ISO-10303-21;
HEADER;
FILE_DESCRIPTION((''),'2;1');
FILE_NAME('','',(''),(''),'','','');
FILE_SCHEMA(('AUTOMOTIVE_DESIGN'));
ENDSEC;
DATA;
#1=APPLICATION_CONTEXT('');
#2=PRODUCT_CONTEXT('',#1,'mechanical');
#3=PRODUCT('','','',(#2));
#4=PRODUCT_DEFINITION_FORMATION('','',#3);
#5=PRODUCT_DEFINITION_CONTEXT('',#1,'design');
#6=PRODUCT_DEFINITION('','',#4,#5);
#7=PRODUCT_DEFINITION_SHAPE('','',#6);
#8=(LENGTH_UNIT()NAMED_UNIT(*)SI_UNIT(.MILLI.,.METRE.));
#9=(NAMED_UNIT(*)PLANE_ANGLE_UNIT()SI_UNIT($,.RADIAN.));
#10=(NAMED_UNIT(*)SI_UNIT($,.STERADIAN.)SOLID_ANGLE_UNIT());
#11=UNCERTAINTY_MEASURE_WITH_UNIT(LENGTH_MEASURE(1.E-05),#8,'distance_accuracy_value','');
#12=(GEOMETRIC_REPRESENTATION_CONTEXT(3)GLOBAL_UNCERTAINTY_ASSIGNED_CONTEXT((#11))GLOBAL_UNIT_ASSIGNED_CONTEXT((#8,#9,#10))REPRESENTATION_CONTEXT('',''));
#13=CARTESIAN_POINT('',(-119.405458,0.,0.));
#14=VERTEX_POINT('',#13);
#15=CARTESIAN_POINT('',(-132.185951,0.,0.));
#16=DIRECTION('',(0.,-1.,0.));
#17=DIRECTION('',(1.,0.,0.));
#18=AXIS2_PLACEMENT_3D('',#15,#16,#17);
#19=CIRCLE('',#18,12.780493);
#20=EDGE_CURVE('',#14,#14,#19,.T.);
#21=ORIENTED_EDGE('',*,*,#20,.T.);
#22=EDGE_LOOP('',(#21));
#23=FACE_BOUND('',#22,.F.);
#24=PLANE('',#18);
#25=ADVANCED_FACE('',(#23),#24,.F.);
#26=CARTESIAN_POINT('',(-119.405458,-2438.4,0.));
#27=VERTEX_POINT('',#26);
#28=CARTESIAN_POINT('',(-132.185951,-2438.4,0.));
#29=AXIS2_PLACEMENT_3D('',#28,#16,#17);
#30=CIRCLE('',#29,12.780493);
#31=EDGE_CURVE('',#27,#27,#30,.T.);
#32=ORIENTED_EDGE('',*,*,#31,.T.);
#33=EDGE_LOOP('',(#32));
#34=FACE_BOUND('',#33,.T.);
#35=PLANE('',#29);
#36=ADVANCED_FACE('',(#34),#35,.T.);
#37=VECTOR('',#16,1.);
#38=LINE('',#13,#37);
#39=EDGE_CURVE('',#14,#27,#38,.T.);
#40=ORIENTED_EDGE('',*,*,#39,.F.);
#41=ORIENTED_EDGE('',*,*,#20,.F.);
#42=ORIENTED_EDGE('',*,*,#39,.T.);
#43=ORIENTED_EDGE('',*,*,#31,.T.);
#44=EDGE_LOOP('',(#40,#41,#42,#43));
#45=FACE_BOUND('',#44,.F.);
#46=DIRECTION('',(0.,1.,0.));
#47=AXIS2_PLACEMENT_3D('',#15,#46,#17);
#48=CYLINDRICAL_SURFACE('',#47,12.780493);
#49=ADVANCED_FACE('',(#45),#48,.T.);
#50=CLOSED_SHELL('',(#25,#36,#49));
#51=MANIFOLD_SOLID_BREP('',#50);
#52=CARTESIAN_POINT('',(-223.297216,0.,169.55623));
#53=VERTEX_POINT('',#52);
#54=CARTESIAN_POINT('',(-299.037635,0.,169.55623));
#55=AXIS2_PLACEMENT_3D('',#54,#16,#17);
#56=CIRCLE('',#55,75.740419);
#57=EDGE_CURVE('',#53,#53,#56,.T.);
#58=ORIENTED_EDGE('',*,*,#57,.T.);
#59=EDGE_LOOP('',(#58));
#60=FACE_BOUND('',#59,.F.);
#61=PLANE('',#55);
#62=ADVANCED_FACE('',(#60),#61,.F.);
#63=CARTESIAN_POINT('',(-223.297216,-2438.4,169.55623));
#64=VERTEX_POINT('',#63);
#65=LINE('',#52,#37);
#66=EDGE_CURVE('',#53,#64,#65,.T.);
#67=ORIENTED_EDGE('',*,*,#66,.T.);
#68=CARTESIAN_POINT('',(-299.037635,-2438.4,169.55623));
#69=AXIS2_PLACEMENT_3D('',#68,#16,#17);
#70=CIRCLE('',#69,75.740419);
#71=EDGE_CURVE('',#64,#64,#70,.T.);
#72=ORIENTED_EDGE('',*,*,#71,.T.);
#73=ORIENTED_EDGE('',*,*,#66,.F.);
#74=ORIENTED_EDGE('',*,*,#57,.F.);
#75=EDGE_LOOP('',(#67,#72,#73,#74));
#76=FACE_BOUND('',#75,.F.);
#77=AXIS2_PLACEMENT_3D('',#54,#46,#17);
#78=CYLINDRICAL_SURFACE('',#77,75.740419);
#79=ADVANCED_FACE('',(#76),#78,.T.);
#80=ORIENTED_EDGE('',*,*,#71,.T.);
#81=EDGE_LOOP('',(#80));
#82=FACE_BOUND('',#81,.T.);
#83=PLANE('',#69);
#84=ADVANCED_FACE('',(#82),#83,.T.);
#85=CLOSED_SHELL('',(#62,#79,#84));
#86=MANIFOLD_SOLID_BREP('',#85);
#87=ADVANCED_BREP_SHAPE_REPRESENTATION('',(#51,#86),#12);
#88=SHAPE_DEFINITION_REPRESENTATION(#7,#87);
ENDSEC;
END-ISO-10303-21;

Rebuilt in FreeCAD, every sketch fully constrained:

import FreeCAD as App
import Part
import Sketcher

V = App.Vector
Q = App.Units.Quantity

doc = App.newDocument("Part")
body = doc.addObject("PartDesign::Body", "Body")

# Sketch on XZ plane
sketch1 = body.newObject("Sketcher::SketchObject", "Sketch")
sketch1.AttachmentSupport = (doc.getObject("XZ_Plane"), [""])
sketch1.MapMode = "FlatFace"
sketch1.addGeometry(Part.Circle(V(-132, 0, 0), V(0, 0, 1), 13), False)
sketch1.addConstraint([
    Sketcher.Constraint("PointOnObject", 0, 3, -1),
    Sketcher.Constraint("Diameter", 0, Q("25.560986 mm")),
    Sketcher.Constraint("DistanceX", 0, 3, -1, 1, Q("132.185951 mm")),
])
pad1 = body.newObject("PartDesign::Pad", "Pad")
pad1.Profile = sketch1
pad1.Length = Q("96 in")
body2 = doc.addObject("PartDesign::Body", "Body001")

# Sketch on XZ plane
sketch2 = body2.newObject("Sketcher::SketchObject", "Sketch001")
sketch2.AttachmentSupport = (doc.getObject("XZ_Plane001"), [""])
sketch2.MapMode = "FlatFace"
sketch2.addGeometry(Part.Circle(V(-299, 170, 0), V(0, 0, 1), 76), False)
sketch2.addConstraint([
    Sketcher.Constraint("Diameter", 0, Q("151.480838 mm")),
    Sketcher.Constraint("DistanceY", -1, 1, 0, 3, Q("169.55623 mm")),
    Sketcher.Constraint("DistanceX", 0, 3, -1, 1, Q("299.037635 mm")),
])
pad2 = body2.newObject("PartDesign::Pad", "Pad001")
pad2.Profile = sketch2
pad2.Length = Q("96 in")

doc.recompute()
